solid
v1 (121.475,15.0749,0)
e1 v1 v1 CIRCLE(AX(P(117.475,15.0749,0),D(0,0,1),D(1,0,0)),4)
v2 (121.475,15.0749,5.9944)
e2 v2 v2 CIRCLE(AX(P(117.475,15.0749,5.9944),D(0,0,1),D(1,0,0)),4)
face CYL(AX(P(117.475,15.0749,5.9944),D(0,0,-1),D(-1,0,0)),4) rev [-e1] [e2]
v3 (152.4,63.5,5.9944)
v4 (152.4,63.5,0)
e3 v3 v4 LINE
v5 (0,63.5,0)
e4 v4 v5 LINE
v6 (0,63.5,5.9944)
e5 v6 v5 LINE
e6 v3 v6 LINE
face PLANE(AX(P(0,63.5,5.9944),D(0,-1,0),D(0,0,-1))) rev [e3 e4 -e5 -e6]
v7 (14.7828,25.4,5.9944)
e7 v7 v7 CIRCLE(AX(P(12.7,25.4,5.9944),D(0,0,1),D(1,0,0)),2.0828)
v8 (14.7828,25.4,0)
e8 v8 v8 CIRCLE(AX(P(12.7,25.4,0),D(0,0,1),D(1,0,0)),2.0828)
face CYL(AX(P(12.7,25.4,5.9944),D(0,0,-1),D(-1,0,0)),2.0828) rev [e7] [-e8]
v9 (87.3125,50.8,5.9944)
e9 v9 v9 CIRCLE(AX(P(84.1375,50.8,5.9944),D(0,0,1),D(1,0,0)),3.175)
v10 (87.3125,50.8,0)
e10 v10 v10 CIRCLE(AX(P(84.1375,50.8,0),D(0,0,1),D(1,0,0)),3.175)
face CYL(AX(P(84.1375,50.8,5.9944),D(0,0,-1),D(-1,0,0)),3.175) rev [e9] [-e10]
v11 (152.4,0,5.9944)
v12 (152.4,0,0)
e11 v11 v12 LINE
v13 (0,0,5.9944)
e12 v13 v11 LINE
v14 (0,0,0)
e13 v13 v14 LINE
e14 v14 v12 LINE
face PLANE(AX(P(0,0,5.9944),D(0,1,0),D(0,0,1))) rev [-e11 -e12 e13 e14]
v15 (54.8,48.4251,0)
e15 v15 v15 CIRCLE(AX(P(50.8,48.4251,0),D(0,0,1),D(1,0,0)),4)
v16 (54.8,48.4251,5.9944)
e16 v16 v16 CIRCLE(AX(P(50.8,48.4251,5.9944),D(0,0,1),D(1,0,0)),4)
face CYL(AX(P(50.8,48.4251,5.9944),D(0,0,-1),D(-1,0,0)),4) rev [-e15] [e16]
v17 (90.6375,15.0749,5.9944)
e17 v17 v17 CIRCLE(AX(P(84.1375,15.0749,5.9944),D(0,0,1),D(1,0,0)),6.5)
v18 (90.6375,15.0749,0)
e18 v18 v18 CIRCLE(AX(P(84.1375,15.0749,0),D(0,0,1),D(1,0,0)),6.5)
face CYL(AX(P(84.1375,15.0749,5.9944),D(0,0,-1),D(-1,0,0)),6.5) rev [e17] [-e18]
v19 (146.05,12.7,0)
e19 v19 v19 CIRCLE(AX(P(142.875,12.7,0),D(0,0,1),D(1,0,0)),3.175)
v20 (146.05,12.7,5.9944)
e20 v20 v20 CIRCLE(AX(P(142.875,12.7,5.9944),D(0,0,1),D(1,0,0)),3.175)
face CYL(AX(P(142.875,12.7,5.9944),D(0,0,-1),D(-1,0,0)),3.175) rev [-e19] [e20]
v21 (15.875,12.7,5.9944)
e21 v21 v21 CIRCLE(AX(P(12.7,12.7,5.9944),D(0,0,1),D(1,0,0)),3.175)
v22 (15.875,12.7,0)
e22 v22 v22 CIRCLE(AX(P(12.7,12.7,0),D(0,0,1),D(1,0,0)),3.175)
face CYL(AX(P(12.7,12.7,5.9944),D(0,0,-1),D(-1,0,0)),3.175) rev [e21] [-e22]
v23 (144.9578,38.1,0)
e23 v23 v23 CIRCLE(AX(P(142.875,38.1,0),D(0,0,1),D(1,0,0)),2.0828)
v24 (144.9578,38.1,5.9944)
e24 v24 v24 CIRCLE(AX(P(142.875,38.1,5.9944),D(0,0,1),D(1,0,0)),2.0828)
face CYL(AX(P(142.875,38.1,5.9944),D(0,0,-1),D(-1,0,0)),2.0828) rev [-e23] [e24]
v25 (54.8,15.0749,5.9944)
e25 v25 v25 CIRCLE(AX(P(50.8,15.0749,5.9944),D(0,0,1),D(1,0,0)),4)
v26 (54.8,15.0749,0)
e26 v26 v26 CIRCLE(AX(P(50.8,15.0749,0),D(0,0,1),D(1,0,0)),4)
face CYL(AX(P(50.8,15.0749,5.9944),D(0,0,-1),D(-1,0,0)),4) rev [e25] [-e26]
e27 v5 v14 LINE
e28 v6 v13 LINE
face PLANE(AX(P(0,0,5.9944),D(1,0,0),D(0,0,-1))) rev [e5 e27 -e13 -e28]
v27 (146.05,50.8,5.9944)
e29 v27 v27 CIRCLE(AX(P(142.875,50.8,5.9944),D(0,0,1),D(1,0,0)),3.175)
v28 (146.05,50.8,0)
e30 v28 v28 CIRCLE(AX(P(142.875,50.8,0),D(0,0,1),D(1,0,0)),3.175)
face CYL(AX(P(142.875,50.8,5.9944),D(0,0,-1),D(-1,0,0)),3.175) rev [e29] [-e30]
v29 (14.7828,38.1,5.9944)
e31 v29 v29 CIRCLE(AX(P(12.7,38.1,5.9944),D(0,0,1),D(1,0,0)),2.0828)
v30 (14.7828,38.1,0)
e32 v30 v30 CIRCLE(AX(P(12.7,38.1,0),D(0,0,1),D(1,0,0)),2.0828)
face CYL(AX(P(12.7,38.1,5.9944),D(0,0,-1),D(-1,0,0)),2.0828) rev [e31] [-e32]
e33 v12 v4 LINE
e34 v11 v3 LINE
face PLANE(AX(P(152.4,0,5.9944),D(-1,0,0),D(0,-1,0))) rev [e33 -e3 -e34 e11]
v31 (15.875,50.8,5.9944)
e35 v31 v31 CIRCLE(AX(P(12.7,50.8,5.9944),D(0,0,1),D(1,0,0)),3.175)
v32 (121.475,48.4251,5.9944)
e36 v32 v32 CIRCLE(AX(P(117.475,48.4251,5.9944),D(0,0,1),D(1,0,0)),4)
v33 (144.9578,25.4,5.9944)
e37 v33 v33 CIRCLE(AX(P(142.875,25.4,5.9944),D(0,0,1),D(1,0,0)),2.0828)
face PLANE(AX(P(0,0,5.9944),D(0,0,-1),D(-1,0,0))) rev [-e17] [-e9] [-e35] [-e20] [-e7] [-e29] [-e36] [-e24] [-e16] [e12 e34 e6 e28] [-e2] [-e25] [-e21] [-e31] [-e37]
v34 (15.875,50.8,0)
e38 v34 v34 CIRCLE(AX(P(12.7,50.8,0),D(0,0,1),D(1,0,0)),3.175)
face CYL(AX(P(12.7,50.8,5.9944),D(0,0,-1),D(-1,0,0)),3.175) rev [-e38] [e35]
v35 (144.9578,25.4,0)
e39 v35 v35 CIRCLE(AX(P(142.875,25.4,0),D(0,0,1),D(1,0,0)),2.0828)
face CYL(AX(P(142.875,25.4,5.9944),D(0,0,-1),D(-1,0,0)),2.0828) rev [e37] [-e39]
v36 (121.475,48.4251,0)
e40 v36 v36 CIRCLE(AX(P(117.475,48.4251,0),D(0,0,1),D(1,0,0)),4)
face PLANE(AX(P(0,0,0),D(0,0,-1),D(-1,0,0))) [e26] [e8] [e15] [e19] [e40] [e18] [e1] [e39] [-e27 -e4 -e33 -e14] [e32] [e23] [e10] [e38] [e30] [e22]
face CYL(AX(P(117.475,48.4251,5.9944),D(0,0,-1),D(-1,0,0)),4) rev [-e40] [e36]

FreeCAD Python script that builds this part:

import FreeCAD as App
import Part
import Sketcher
Q = App.Units.Quantity

doc = App.newDocument("Part")
body = doc.addObject("PartDesign::Body", "Body")

# Sketch on XY plane
sketch1 = body.newObject("Sketcher::SketchObject", "Sketch")
sketch1.AttachmentSupport = (doc.getObject("XY_Plane"), [""])
sketch1.MapMode = "FlatFace"
sketch1.addGeometry(Part.LineSegment(App.Vector(0, 63.5, 0), App.Vector(0, 0, 0)), False)
sketch1.addGeometry(Part.LineSegment(App.Vector(0, 0, 0), App.Vector(152.4, 0, 0)), False)
sketch1.addGeometry(Part.LineSegment(App.Vector(152.4, 0, 0), App.Vector(152.4, 63.5, 0)), False)
sketch1.addGeometry(Part.LineSegment(App.Vector(152.4, 63.5, 0), App.Vector(0, 63.5, 0)), False)
sketch1.addGeometry(Part.Circle(App.Vector(12.7, 12.7, 0), App.Vector(0, 0, 1), 3.2), False)
sketch1.addGeometry(Part.Circle(App.Vector(50.8, 15.1, 0), App.Vector(0, 0, 1), 4), False)
sketch1.addGeometry(Part.Circle(App.Vector(12.7, 25.4, 0), App.Vector(0, 0, 1), 2.1), False)
sketch1.addGeometry(Part.Circle(App.Vector(84.1, 15.1, 0), App.Vector(0, 0, 1), 6.5), False)
sketch1.addGeometry(Part.Circle(App.Vector(142.9, 12.7, 0), App.Vector(0, 0, 1), 3.2), False)
sketch1.addGeometry(Part.Circle(App.Vector(117.5, 15.1, 0), App.Vector(0, 0, 1), 4), False)
sketch1.addGeometry(Part.Circle(App.Vector(142.9, 25.4, 0), App.Vector(0, 0, 1), 2.1), False)
sketch1.addGeometry(Part.Circle(App.Vector(12.7, 38.1, 0), App.Vector(0, 0, 1), 2.1), False)
sketch1.addGeometry(Part.Circle(App.Vector(12.7, 50.8, 0), App.Vector(0, 0, 1), 3.2), False)
sketch1.addGeometry(Part.Circle(App.Vector(50.8, 48.4, 0), App.Vector(0, 0, 1), 4), False)
sketch1.addGeometry(Part.Circle(App.Vector(142.9, 38.1, 0), App.Vector(0, 0, 1), 2.1), False)
sketch1.addGeometry(Part.Circle(App.Vector(84.1, 50.8, 0), App.Vector(0, 0, 1), 3.2), False)
sketch1.addGeometry(Part.Circle(App.Vector(117.5, 48.4, 0), App.Vector(0, 0, 1), 4), False)
sketch1.addGeometry(Part.Circle(App.Vector(142.9, 50.8, 0), App.Vector(0, 0, 1), 3.2), False)
sketch1.addConstraint(Sketcher.Constraint("Coincident", 0, 2, 1, 1))
sketch1.addConstraint(Sketcher.Constraint("Coincident", 1, 2, 2, 1))
sketch1.addConstraint(Sketcher.Constraint("Coincident", 2, 2, 3, 1))
sketch1.addConstraint(Sketcher.Constraint("Coincident", 3, 2, 0, 1))
sketch1.addConstraint(Sketcher.Constraint("Vertical", 0))
sketch1.addConstraint(Sketcher.Constraint("Horizontal", 1))
sketch1.addConstraint(Sketcher.Constraint("Vertical", 2))
sketch1.addConstraint(Sketcher.Constraint("Horizontal", 3))
sketch1.addConstraint(Sketcher.Constraint("Coincident", 0, 2, -1, 1))
sketch1.addConstraint(Sketcher.Constraint("Equal", 4, 8))
sketch1.addConstraint(Sketcher.Constraint("Equal", 5, 9))
sketch1.addConstraint(Sketcher.Constraint("Equal", 6, 10))
sketch1.addConstraint(Sketcher.Constraint("Equal", 10, 11))
sketch1.addConstraint(Sketcher.Constraint("Equal", 8, 12))
sketch1.addConstraint(Sketcher.Constraint("Equal", 9, 13))
sketch1.addConstraint(Sketcher.Constraint("Equal", 11, 14))
sketch1.addConstraint(Sketcher.Constraint("Equal", 12, 15))
sketch1.addConstraint(Sketcher.Constraint("Equal", 13, 16))
sketch1.addConstraint(Sketcher.Constraint("Equal", 15, 17))
sketch1.addConstraint(Sketcher.Constraint("Horizontal", 5, 3, 7, 3))
sketch1.addConstraint(Sketcher.Constraint("Horizontal", 4, 3, 8, 3))
sketch1.addConstraint(Sketcher.Constraint("Horizontal", 7, 3, 9, 3))
sketch1.addConstraint(Sketcher.Constraint("Horizontal", 6, 3, 10, 3))
sketch1.addConstraint(Sketcher.Constraint("Horizontal", 11, 3, 14, 3))
sketch1.addConstraint(Sketcher.Constraint("Horizontal", 12, 3, 15, 3))
sketch1.addConstraint(Sketcher.Constraint("Horizontal", 13, 3, 16, 3))
sketch1.addConstraint(Sketcher.Constraint("Horizontal", 15, 3, 17, 3))
sketch1.addConstraint(Sketcher.Constraint("Vertical", 4, 3, 6, 3))
sketch1.addConstraint(Sketcher.Constraint("Vertical", 8, 3, 10, 3))
sketch1.addConstraint(Sketcher.Constraint("Vertical", 6, 3, 11, 3))
sketch1.addConstraint(Sketcher.Constraint("Vertical", 11, 3, 12, 3))
sketch1.addConstraint(Sketcher.Constraint("Vertical", 5, 3, 13, 3))
sketch1.addConstraint(Sketcher.Constraint("Vertical", 10, 3, 14, 3))
sketch1.addConstraint(Sketcher.Constraint("Vertical", 7, 3, 15, 3))
sketch1.addConstraint(Sketcher.Constraint("Vertical", 9, 3, 16, 3))
sketch1.addConstraint(Sketcher.Constraint("Vertical", 14, 3, 17, 3))
sketch1.addConstraint(Sketcher.Constraint("Diameter", 4, Q("0.25 in")))
sketch1.addConstraint(Sketcher.Constraint("DistanceX", 1, 1, 1, 2, Q("6 in")))
sketch1.addConstraint(Sketcher.Constraint("Diameter", 6, Q("0.164 in")))
sketch1.addConstraint(Sketcher.Constraint("DistanceY", 0, 2, 0, 1, Q("2.5 in")))
sketch1.addConstraint(Sketcher.Constraint("DistanceX", -1, 1, 5, 3, Q("2 in")))
sketch1.addConstraint(Sketcher.Constraint("DistanceY", -1, 1, 6, 3, Q("1 in")))
sketch1.addConstraint(Sketcher.Constraint("DistanceY", -1, 1, 12, 3, Q("2 in")))
sketch1.addConstraint(Sketcher.Constraint("DistanceX", 9, 3, 8, 3, Q("1 in")))
sketch1.addConstraint(Sketcher.Constraint("DistanceY", 4, 3, 11, 3, Q("1 in")))
sketch1.addConstraint(Sketcher.Constraint("DistanceY", 14, 3, 2, 2, Q("1 in")))
sketch1.addConstraint(Sketcher.Constraint("DistanceX", -1, 1, 4, 3, Q("0.5 in")))
sketch1.addConstraint(Sketcher.Constraint("Diameter", 5, 8.0))
sketch1.addConstraint(Sketcher.Constraint("Diameter", 7, 13.0))
sketch1.addConstraint(Sketcher.Constraint("DistanceX", -1, 1, 7, 3, Q("3.3125 in")))
sketch1.addConstraint(Sketcher.Constraint("DistanceX", -1, 1, 8, 3, Q("5.625 in")))
sketch1.addConstraint(Sketcher.Constraint("DistanceY", 5, 3, 13, 3, Q("1.313 in")))
sketch1.addConstraint(Sketcher.Constraint("DistanceY", -1, 1, 5, 3, Q("0.5935 in")))
pad1 = body.newObject("PartDesign::Pad", "Pad")
pad1.Profile = sketch1
pad1.Length = Q("0.236 in")

doc.recompute()
